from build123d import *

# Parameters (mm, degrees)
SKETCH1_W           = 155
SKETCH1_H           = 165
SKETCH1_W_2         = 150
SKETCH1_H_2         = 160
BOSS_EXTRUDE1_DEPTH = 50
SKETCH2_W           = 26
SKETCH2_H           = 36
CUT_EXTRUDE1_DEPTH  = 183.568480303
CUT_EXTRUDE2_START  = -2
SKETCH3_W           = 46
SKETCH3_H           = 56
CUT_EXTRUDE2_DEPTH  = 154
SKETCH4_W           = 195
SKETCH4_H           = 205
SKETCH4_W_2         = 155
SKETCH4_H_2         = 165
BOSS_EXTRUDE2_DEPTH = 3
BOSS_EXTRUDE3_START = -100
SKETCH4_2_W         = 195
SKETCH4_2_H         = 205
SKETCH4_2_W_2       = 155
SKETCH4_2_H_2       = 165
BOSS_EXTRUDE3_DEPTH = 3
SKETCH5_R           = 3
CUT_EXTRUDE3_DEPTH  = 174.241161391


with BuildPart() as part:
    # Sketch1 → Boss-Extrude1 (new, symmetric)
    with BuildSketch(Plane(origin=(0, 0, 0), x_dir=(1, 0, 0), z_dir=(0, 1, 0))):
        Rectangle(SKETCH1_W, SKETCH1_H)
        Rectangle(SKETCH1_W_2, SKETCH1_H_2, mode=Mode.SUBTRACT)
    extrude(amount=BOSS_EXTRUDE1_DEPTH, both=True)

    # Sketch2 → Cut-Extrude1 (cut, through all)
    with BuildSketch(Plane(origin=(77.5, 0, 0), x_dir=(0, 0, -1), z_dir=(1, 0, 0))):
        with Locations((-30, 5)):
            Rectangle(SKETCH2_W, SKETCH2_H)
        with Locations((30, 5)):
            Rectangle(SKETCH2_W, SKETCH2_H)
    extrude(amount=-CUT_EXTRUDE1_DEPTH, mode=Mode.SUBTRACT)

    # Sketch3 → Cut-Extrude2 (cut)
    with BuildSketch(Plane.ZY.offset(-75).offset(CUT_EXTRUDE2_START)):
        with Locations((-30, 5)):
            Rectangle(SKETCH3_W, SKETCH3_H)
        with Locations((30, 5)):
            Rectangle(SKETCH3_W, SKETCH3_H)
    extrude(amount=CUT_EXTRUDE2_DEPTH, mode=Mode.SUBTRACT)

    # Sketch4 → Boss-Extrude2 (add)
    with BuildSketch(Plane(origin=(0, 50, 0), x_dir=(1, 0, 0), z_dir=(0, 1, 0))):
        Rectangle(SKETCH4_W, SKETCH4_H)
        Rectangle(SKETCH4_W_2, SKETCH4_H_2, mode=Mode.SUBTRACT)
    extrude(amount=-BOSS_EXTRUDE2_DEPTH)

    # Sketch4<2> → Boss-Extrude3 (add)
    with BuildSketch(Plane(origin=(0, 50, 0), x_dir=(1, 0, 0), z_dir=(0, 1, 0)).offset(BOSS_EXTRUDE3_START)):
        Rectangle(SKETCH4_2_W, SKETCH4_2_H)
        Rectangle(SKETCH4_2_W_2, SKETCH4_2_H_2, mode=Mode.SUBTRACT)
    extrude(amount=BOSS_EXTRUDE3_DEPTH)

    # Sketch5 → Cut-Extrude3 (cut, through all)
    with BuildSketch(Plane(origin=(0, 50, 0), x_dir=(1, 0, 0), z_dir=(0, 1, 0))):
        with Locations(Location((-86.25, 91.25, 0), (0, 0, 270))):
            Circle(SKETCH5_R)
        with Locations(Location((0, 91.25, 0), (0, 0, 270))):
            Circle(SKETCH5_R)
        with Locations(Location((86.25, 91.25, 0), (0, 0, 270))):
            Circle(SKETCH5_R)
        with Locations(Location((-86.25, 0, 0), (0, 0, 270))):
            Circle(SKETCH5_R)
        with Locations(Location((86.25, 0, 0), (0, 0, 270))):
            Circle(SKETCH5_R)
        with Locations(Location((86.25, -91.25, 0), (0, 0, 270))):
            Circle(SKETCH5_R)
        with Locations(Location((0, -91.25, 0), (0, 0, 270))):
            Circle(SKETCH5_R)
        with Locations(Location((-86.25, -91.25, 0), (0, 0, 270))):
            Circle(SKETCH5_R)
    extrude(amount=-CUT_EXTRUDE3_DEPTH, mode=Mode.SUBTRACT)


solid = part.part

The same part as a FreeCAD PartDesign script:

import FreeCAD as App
import Part
import Sketcher
from FreeCAD import Vector

doc = App.newDocument("Part")
params = doc.addObject("Spreadsheet::Sheet", "Params")
for row, (alias, value) in enumerate([
    ("sketch1_width", "155 mm"),
    ("sketch1_width2", "150 mm"),
    ("sketch1_height", "165 mm"),
    ("sketch1_height2", "160 mm"),
    ("pad1_length", "100 mm"),
    ("sketch2_width", "36 mm"),
    ("sketch2_height", "26 mm"),
    ("sketch3_width", "56 mm"),
    ("sketch3_height", "46 mm"),
    ("pocket2_length", "154 mm"),
    ("sketch4_width", "195 mm"),
    ("sketch4_width2", "155 mm"),
    ("sketch4_height", "205 mm"),
    ("sketch4_height2", "165 mm"),
    ("pad2_length", "3 mm"),
    ("sketch5_width", "195 mm"),
    ("sketch5_width2", "155 mm"),
    ("sketch5_height", "205 mm"),
    ("sketch5_height2", "165 mm"),
    ("pad3_length", "3 mm"),
    ("sketch6_diameter", "6 mm"),
], start=1):
    params.set(f"A{row}", alias)
    params.set(f"B{row}", "=" + value)
    params.setAlias(f"B{row}", alias)

body = doc.addObject("PartDesign::Body", "Body")

# Sketch on XZ plane
sketch1 = body.newObject("Sketcher::SketchObject", "Sketch")
sketch1.AttachmentSupport = (doc.getObject("XZ_Plane"), [""])
sketch1.MapMode = "FlatFace"
sketch1.addGeometry([
    Part.LineSegment(Vector(-78, -82, 0), Vector(-78, 82, 0)),  # 0
    Part.LineSegment(Vector(-78, 82, 0), Vector(78, 82, 0)),  # 1
    Part.LineSegment(Vector(78, 82, 0), Vector(78, -82, 0)),  # 2
    Part.LineSegment(Vector(78, -82, 0), Vector(-78, -82, 0)),  # 3
    Part.LineSegment(Vector(75, 80, 0), Vector(-75, 80, 0)),  # 4
    Part.LineSegment(Vector(-75, 80, 0), Vector(-75, -80, 0)),  # 5
    Part.LineSegment(Vector(-75, -80, 0), Vector(75, -80, 0)),  # 6
    Part.LineSegment(Vector(75, -80, 0), Vector(75, 80, 0)),  # 7
], False)
sketch1.addConstraint([
    Sketcher.Constraint("Coincident", 0, 2, 1, 1),
    Sketcher.Constraint("Coincident", 1, 2, 2, 1),
    Sketcher.Constraint("Coincident", 2, 2, 3, 1),
    Sketcher.Constraint("Coincident", 3, 2, 0, 1),
    Sketcher.Constraint("Coincident", 4, 2, 5, 1),
    Sketcher.Constraint("Coincident", 5, 2, 6, 1),
    Sketcher.Constraint("Coincident", 6, 2, 7, 1),
    Sketcher.Constraint("Coincident", 7, 2, 4, 1),
    Sketcher.Constraint("Vertical", 0),
    Sketcher.Constraint("Horizontal", 1),
    Sketcher.Constraint("Vertical", 2),
    Sketcher.Constraint("Horizontal", 3),
    Sketcher.Constraint("Horizontal", 4),
    Sketcher.Constraint("Vertical", 5),
    Sketcher.Constraint("Horizontal", 6),
    Sketcher.Constraint("Vertical", 7),
    Sketcher.Constraint("Symmetric", 0, 2, 2, 2, -1, 1),
    Sketcher.Constraint("Symmetric", 4, 2, 6, 2, -1, 1),
    Sketcher.Constraint("DistanceX", 1, 1, 1, 2, 155.0),
    Sketcher.Constraint("DistanceX", 4, 2, 4, 1, 150.0),
    Sketcher.Constraint("DistanceY", 0, 1, 0, 2, 165.0),
    Sketcher.Constraint("DistanceY", 5, 2, 5, 1, 160.0),
])
sketch1.setExpression("Constraints[18]", "Params.sketch1_width")
sketch1.setExpression("Constraints[19]", "Params.sketch1_width2")
sketch1.setExpression("Constraints[20]", "Params.sketch1_height")
sketch1.setExpression("Constraints[21]", "Params.sketch1_height2")
pad1 = body.newObject("PartDesign::Pad", "Pad")
pad1.Profile = sketch1
pad1.setExpression("Length", "Params.pad1_length")
pad1.Midplane = True

# Sketch on YZ plane
sketch2 = body.newObject("Sketcher::SketchObject", "Sketch001")
sketch2.AttachmentSupport = (doc.getObject("YZ_Plane"), [""])
sketch2.MapMode = "FlatFace"
sketch2.AttachmentOffset = App.Placement(Vector(0, 0, 77.5), App.Rotation())
sketch2.addGeometry([
    Part.LineSegment(Vector(23, 43, 0), Vector(-13, 43, 0)),  # 0
    Part.LineSegment(Vector(-13, 43, 0), Vector(-13, 17, 0)),  # 1
    Part.LineSegment(Vector(-13, 17, 0), Vector(23, 17, 0)),  # 2
    Part.LineSegment(Vector(23, 17, 0), Vector(23, 43, 0)),  # 3
    Part.LineSegment(Vector(23, -17, 0), Vector(-13, -17, 0)),  # 4
    Part.LineSegment(Vector(-13, -17, 0), Vector(-13, -43, 0)),  # 5
    Part.LineSegment(Vector(-13, -43, 0), Vector(23, -43, 0)),  # 6
    Part.LineSegment(Vector(23, -43, 0), Vector(23, -17, 0)),  # 7
], False)
sketch2.addConstraint([
    Sketcher.Constraint("Coincident", 0, 2, 1, 1),
    Sketcher.Constraint("Coincident", 1, 2, 2, 1),
    Sketcher.Constraint("Coincident", 2, 2, 3, 1),
    Sketcher.Constraint("Coincident", 3, 2, 0, 1),
    Sketcher.Constraint("Coincident", 4, 2, 5, 1),
    Sketcher.Constraint("Coincident", 5, 2, 6, 1),
    Sketcher.Constraint("Coincident", 6, 2, 7, 1),
    Sketcher.Constraint("Coincident", 7, 2, 4, 1),
    Sketcher.Constraint("Horizontal", 0),
    Sketcher.Constraint("Vertical", 1),
    Sketcher.Constraint("Horizontal", 2),
    Sketcher.Constraint("Vertical", 3),
    Sketcher.Constraint("Horizontal", 4),
    Sketcher.Constraint("Vertical", 5),
    Sketcher.Constraint("Horizontal", 6),
    Sketcher.Constraint("Vertical", 7),
    Sketcher.Constraint("Symmetric", 1, 2, 4, 2, -1),
    Sketcher.Constraint("Symmetric", 3, 2, 6, 2, -1),
    Sketcher.Constraint("DistanceX", 0, 2, 0, 1, 36.0),
    Sketcher.Constraint("DistanceY", 1, 2, 1, 1, 26.0),
    Sketcher.Constraint("DistanceX", 0, 2, -1, 1, 13.0),
    Sketcher.Constraint("DistanceY", -1, 1, 0, 2, 43.0),
])
sketch2.setExpression("Constraints[18]", "Params.sketch2_width")
sketch2.setExpression("Constraints[19]", "Params.sketch2_height")
pocket1 = body.newObject("PartDesign::Pocket", "Pocket")
pocket1.Profile = sketch2
pocket1.Type = "ThroughAll"

# Sketch on YZ plane
sketch3 = body.newObject("Sketcher::SketchObject", "Sketch002")
sketch3.AttachmentSupport = (doc.getObject("YZ_Plane"), [""])
sketch3.MapMode = "FlatFace"
sketch3.AttachmentOffset = App.Placement(Vector(0, 0, 77), App.Rotation())
sketch3.addGeometry([
    Part.LineSegment(Vector(33, -53, 0), Vector(-23, -53, 0)),  # 0
    Part.LineSegment(Vector(-23, -53, 0), Vector(-23, -7, 0)),  # 1
    Part.LineSegment(Vector(-23, -7, 0), Vector(33, -7, 0)),  # 2
    Part.LineSegment(Vector(33, -7, 0), Vector(33, -53, 0)),  # 3
    Part.LineSegment(Vector(33, 7, 0), Vector(-23, 7, 0)),  # 4
    Part.LineSegment(Vector(-23, 7, 0), Vector(-23, 53, 0)),  # 5
    Part.LineSegment(Vector(-23, 53, 0), Vector(33, 53, 0)),  # 6
    Part.LineSegment(Vector(33, 53, 0), Vector(33, 7, 0)),  # 7
], False)
sketch3.addConstraint([
    Sketcher.Constraint("Coincident", 0, 2, 1, 1),
    Sketcher.Constraint("Coincident", 1, 2, 2, 1),
    Sketcher.Constraint("Coincident", 2, 2, 3, 1),
    Sketcher.Constraint("Coincident", 3, 2, 0, 1),
    Sketcher.Constraint("Coincident", 4, 2, 5, 1),
    Sketcher.Constraint("Coincident", 5, 2, 6, 1),
    Sketcher.Constraint("Coincident", 6, 2, 7, 1),
    Sketcher.Constraint("Coincident", 7, 2, 4, 1),
    Sketcher.Constraint("Horizontal", 0),
    Sketcher.Constraint("Vertical", 1),
    Sketcher.Constraint("Horizontal", 2),
    Sketcher.Constraint("Vertical", 3),
    Sketcher.Constraint("Horizontal", 4),
    Sketcher.Constraint("Vertical", 5),
    Sketcher.Constraint("Horizontal", 6),
    Sketcher.Constraint("Vertical", 7),
    Sketcher.Constraint("Symmetric", 1, 2, 4, 2, -1),
    Sketcher.Constraint("Symmetric", 3, 2, 6, 2, -1),
    Sketcher.Constraint("DistanceX", 0, 2, 0, 1, 56.0),
    Sketcher.Constraint("DistanceY", 1, 1, 1, 2, 46.0),
    Sketcher.Constraint("DistanceX", 0, 2, -1, 1, 23.0),
    Sketcher.Constraint("DistanceY", 0, 2, -1, 1, 53.0),
])
sketch3.setExpression("Constraints[18]", "Params.sketch3_width")
sketch3.setExpression("Constraints[19]", "Params.sketch3_height")
pocket2 = body.newObject("PartDesign::Pocket", "Pocket001")
pocket2.Profile = sketch3
pocket2.setExpression("Length", "Params.pocket2_length")

# Sketch on XZ plane
sketch4 = body.newObject("Sketcher::SketchObject", "Sketch003")
sketch4.AttachmentSupport = (doc.getObject("XZ_Plane"), [""])
sketch4.MapMode = "FlatFace"
sketch4.AttachmentOffset = App.Placement(Vector(0, 0, -50), App.Rotation())
sketch4.addGeometry([
    Part.LineSegment(Vector(-98, -102, 0), Vector(-98, 102, 0)),  # 0
    Part.LineSegment(Vector(-98, 102, 0), Vector(98, 102, 0)),  # 1
    Part.LineSegment(Vector(98, 102, 0), Vector(98, -102, 0)),  # 2
    Part.LineSegment(Vector(98, -102, 0), Vector(-98, -102, 0)),  # 3
    Part.LineSegment(Vector(78, 82, 0), Vector(-78, 82, 0)),  # 4
    Part.LineSegment(Vector(-78, 82, 0), Vector(-78, -82, 0)),  # 5
    Part.LineSegment(Vector(-78, -82, 0), Vector(78, -82, 0)),  # 6
    Part.LineSegment(Vector(78, -82, 0), Vector(78, 82, 0)),  # 7
], False)
sketch4.addConstraint([
    Sketcher.Constraint("Coincident", 0, 2, 1, 1),
    Sketcher.Constraint("Coincident", 1, 2, 2, 1),
    Sketcher.Constraint("Coincident", 2, 2, 3, 1),
    Sketcher.Constraint("Coincident", 3, 2, 0, 1),
    Sketcher.Constraint("Coincident", 4, 2, 5, 1),
    Sketcher.Constraint("Coincident", 5, 2, 6, 1),
    Sketcher.Constraint("Coincident", 6, 2, 7, 1),
    Sketcher.Constraint("Coincident", 7, 2, 4, 1),
    Sketcher.Constraint("Vertical", 0),
    Sketcher.Constraint("Horizontal", 1),
    Sketcher.Constraint("Vertical", 2),
    Sketcher.Constraint("Horizontal", 3),
    Sketcher.Constraint("Horizontal", 4),
    Sketcher.Constraint("Vertical", 5),
    Sketcher.Constraint("Horizontal", 6),
    Sketcher.Constraint("Vertical", 7),
    Sketcher.Constraint("Symmetric", 0, 2, 2, 2, -1, 1),
    Sketcher.Constraint("Symmetric", 4, 2, 6, 2, -1, 1),
    Sketcher.Constraint("DistanceX", 1, 1, 1, 2, 195.0),
    Sketcher.Constraint("DistanceX", 4, 2, 4, 1, 155.0),
    Sketcher.Constraint("DistanceY", 0, 1, 0, 2, 205.0),
    Sketcher.Constraint("DistanceY", 5, 2, 5, 1, 165.0),
])
sketch4.setExpression("Constraints[18]", "Params.sketch4_width")
sketch4.setExpression("Constraints[19]", "Params.sketch4_width2")
sketch4.setExpression("Constraints[20]", "Params.sketch4_height")
sketch4.setExpression("Constraints[21]", "Params.sketch4_height2")
pad2 = body.newObject("PartDesign::Pad", "Pad001")
pad2.Profile = sketch4
pad2.setExpression("Length", "Params.pad2_length")

# Sketch on XZ plane
sketch5 = body.newObject("Sketcher::SketchObject", "Sketch004")
sketch5.AttachmentSupport = (doc.getObject("XZ_Plane"), [""])
sketch5.MapMode = "FlatFace"
sketch5.AttachmentOffset = App.Placement(Vector(0, 0, 50), App.Rotation())
sketch5.addGeometry([
    Part.LineSegment(Vector(-98, -102, 0), Vector(-98, 102, 0)),  # 0
    Part.LineSegment(Vector(-98, 102, 0), Vector(98, 102, 0)),  # 1
    Part.LineSegment(Vector(98, 102, 0), Vector(98, -102, 0)),  # 2
    Part.LineSegment(Vector(98, -102, 0), Vector(-98, -102, 0)),  # 3
    Part.LineSegment(Vector(78, 82, 0), Vector(-78, 82, 0)),  # 4
    Part.LineSegment(Vector(-78, 82, 0), Vector(-78, -82, 0)),  # 5
    Part.LineSegment(Vector(-78, -82, 0), Vector(78, -82, 0)),  # 6
    Part.LineSegment(Vector(78, -82, 0), Vector(78, 82, 0)),  # 7
], False)
sketch5.addConstraint([
    Sketcher.Constraint("Coincident", 0, 2, 1, 1),
    Sketcher.Constraint("Coincident", 1, 2, 2, 1),
    Sketcher.Constraint("Coincident", 2, 2, 3, 1),
    Sketcher.Constraint("Coincident", 3, 2, 0, 1),
    Sketcher.Constraint("Coincident", 4, 2, 5, 1),
    Sketcher.Constraint("Coincident", 5, 2, 6, 1),
    Sketcher.Constraint("Coincident", 6, 2, 7, 1),
    Sketcher.Constraint("Coincident", 7, 2, 4, 1),
    Sketcher.Constraint("Vertical", 0),
    Sketcher.Constraint("Horizontal", 1),
    Sketcher.Constraint("Vertical", 2),
    Sketcher.Constraint("Horizontal", 3),
    Sketcher.Constraint("Horizontal", 4),
    Sketcher.Constraint("Vertical", 5),
    Sketcher.Constraint("Horizontal", 6),
    Sketcher.Constraint("Vertical", 7),
    Sketcher.Constraint("Symmetric", 0, 2, 2, 2, -1, 1),
    Sketcher.Constraint("Symmetric", 4, 2, 6, 2, -1, 1),
    Sketcher.Constraint("DistanceX", 1, 1, 1, 2, 195.0),
    Sketcher.Constraint("DistanceX", 4, 2, 4, 1, 155.0),
    Sketcher.Constraint("DistanceY", 0, 1, 0, 2, 205.0),
    Sketcher.Constraint("DistanceY", 5, 2, 5, 1, 165.0),
])
sketch5.setExpression("Constraints[18]", "Params.sketch5_width")
sketch5.setExpression("Constraints[19]", "Params.sketch5_width2")
sketch5.setExpression("Constraints[20]", "Params.sketch5_height")
sketch5.setExpression("Constraints[21]", "Params.sketch5_height2")
pad3 = body.newObject("PartDesign::Pad", "Pad002")
pad3.Profile = sketch5
pad3.setExpression("Length", "Params.pad3_length")
pad3.Reversed = True

# Sketch on XZ plane
sketch6 = body.newObject("Sketcher::SketchObject", "Sketch005")
sketch6.AttachmentSupport = (doc.getObject("XZ_Plane"), [""])
sketch6.MapMode = "FlatFace"
sketch6.AttachmentOffset = App.Placement(Vector(0, 0, -50), App.Rotation())
sketch6.addGeometry([
    Part.Circle(Vector(-86.2, -91.2, 0), Vector(0, 0, 1), 3),  # 0
    Part.Circle(Vector(0, -91.2, 0), Vector(0, 0, 1), 3),  # 1
    Part.Circle(Vector(86.2, -91.2, 0), Vector(0, 0, 1), 3),  # 2
    Part.Circle(Vector(-86.2, 0, 0), Vector(0, 0, 1), 3),  # 3
    Part.Circle(Vector(86.2, 0, 0), Vector(0, 0, 1), 3),  # 4
    Part.Circle(Vector(86.2, 91.2, 0), Vector(0, 0, 1), 3),  # 5
    Part.Circle(Vector(0, 91.2, 0), Vector(0, 0, 1), 3),  # 6
    Part.Circle(Vector(-86.2, 91.2, 0), Vector(0, 0, 1), 3),  # 7
], False)
sketch6.addConstraint([
    Sketcher.Constraint("Equal", 0, 1),
    Sketcher.Constraint("Equal", 1, 2),
    Sketcher.Constraint("Equal", 2, 3),
    Sketcher.Constraint("Equal", 3, 4),
    Sketcher.Constraint("Equal", 4, 5),
    Sketcher.Constraint("Equal", 5, 6),
    Sketcher.Constraint("Equal", 6, 7),
    Sketcher.Constraint("Symmetric", 3, 3, 4, 3, -1, 1),
    Sketcher.Constraint("Symmetric", 0, 3, 5, 3, -1, 1),
    Sketcher.Constraint("Symmetric", 1, 3, 6, 3, -1, 1),
    Sketcher.Constraint("Symmetric", 2, 3, 7, 3, -1, 1),
    Sketcher.Constraint("Symmetric", 0, 3, 2, 3, -2),
    Sketcher.Constraint("PointOnObject", 1, 3, -2),
    Sketcher.Constraint("PointOnObject", 3, 3, -1),
    Sketcher.Constraint("Horizontal", 0, 3, 1, 3),
    Sketcher.Constraint("Vertical", 0, 3, 3, 3),
    Sketcher.Constraint("Diameter", 0, 6.0),
    Sketcher.Constraint("DistanceX", 0, 3, 2, 3, 172.5),
    Sketcher.Constraint("DistanceY", 2, 3, 5, 3, 182.5),
])
sketch6.setExpression("Constraints[16]", "Params.sketch6_diameter")
pocket3 = body.newObject("PartDesign::Pocket", "Pocket002")
pocket3.Profile = sketch6
pocket3.Type = "ThroughAll"
pocket3.Reversed = True

doc.recompute()
